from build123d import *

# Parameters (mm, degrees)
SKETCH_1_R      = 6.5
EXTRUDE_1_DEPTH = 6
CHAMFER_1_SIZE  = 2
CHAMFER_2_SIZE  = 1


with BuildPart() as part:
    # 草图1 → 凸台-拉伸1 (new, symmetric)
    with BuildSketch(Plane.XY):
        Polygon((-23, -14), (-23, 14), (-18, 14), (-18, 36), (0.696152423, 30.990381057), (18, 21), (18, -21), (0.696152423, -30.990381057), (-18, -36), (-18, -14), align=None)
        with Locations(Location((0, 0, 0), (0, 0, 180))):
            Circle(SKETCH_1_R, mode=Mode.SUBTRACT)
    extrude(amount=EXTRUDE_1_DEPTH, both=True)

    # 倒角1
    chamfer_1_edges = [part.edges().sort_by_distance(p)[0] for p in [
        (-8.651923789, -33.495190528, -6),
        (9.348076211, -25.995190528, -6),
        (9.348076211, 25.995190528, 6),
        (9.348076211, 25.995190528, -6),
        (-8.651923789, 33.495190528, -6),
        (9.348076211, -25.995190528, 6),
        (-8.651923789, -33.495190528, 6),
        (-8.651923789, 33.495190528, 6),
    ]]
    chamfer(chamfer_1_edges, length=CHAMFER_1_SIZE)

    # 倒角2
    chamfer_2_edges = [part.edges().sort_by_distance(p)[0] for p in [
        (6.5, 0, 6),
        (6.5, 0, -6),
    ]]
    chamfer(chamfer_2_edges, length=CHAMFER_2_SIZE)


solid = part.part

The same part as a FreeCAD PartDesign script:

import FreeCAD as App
import Part
import Sketcher
from FreeCAD import Vector
Q = App.Units.Quantity


def edges_at(feature, points):
    """Names of the edges that pass closest to the given points."""
    edges = feature.Shape.Edges
    near = lambda p: min(range(len(edges)), key=lambda i: edges[i].distToShape(Part.Vertex(*p))[0])
    return sorted({f"Edge{near(p) + 1}" for p in points})

doc = App.newDocument("Part")
params = doc.addObject("Spreadsheet::Sheet", "Params")
for row, (alias, value) in enumerate([
    ("sketch1_diameter", "13 mm"),
    ("sketch1_width", "5 mm"),
    ("sketch1_height", "28 mm"),
    ("sketch1_height2", "22 mm"),
    ("sketch1_height3", "42 mm"),
    ("pad1_length", "12 mm"),
    ("chamfer_size", "2 mm"),
    ("chamfer2_size", "1 mm"),
], start=1):
    params.set(f"A{row}", alias)
    params.set(f"B{row}", "=" + value)
    params.setAlias(f"B{row}", alias)

body = doc.addObject("PartDesign::Body", "Body")

sketch1 = body.newObject("Sketcher::SketchObject", "Sketch")
sketch1.AttachmentSupport = (doc.getObject("XY_Plane"), [""])
sketch1.MapMode = "FlatFace"
sketch1.addGeometry([
    Part.LineSegment(Vector(-23, 14, 0), Vector(-23, -14, 0)),
    Part.LineSegment(Vector(-23, -14, 0), Vector(-18, -14, 0)),
    Part.LineSegment(Vector(-18, -14, 0), Vector(-18, -36, 0)),
    Part.LineSegment(Vector(-18, -36, 0), Vector(1, -31, 0)),
    Part.LineSegment(Vector(1, -31, 0), Vector(18, -21, 0)),
    Part.LineSegment(Vector(18, -21, 0), Vector(18, 21, 0)),
    Part.LineSegment(Vector(18, 21, 0), Vector(1, 31, 0)),
    Part.LineSegment(Vector(1, 31, 0), Vector(-18, 36, 0)),
    Part.LineSegment(Vector(-18, 36, 0), Vector(-18, 14, 0)),
    Part.LineSegment(Vector(-18, 14, 0), Vector(-23, 14, 0)),
    Part.Circle(Vector(0, 0, 0), Vector(0, 0, 1), 6),
], False)
sketch1.addConstraint([
    Sketcher.Constraint("Coincident", 0, 2, 1, 1),
    Sketcher.Constraint("Coincident", 1, 2, 2, 1),
    Sketcher.Constraint("Coincident", 2, 2, 3, 1),
    Sketcher.Constraint("Coincident", 3, 2, 4, 1),
    Sketcher.Constraint("Coincident", 4, 2, 5, 1),
    Sketcher.Constraint("Coincident", 5, 2, 6, 1),
    Sketcher.Constraint("Coincident", 6, 2, 7, 1),
    Sketcher.Constraint("Coincident", 7, 2, 8, 1),
    Sketcher.Constraint("Coincident", 8, 2, 9, 1),
    Sketcher.Constraint("Coincident", 9, 2, 0, 1),
    Sketcher.Constraint("Vertical", 0),
    Sketcher.Constraint("Horizontal", 1),
    Sketcher.Constraint("Vertical", 2),
    Sketcher.Constraint("Vertical", 5),
    Sketcher.Constraint("Vertical", 8),
    Sketcher.Constraint("Horizontal", 9),
    Sketcher.Constraint("Coincident", 10, 3, -1, 1),
    Sketcher.Constraint("Symmetric", 3, 2, 6, 2, -1),
    Sketcher.Constraint("Symmetric", 2, 2, 7, 2, -1),
    Sketcher.Constraint("Equal", 2, 8),
    Sketcher.Constraint("Equal", 4, 6),
    Sketcher.Constraint("Diameter", 10, Q("13 mm")),
    Sketcher.Constraint("DistanceX", 1, 1, 1, 2, Q("5 mm")),
    Sketcher.Constraint("DistanceY", 0, 2, 0, 1, Q("28 mm")),
    Sketcher.Constraint("DistanceY", 2, 2, 2, 1, Q("22 mm")),
    Sketcher.Constraint("DistanceY", 5, 1, 5, 2, Q("42 mm")),
    Sketcher.Constraint("Angle", 3, Q("15 deg")),
    Sketcher.Constraint("Angle", 4, Q("30 deg")),
    Sketcher.Constraint("DistanceX", 0, 2, -1, 1, Q("23 mm")),
    Sketcher.Constraint("DistanceX", -1, 1, 4, 2, Q("18 mm")),
])
sketch1.setExpression("Constraints[21]", "Params.sketch1_diameter")
sketch1.setExpression("Constraints[22]", "Params.sketch1_width")
sketch1.setExpression("Constraints[23]", "Params.sketch1_height")
sketch1.setExpression("Constraints[24]", "Params.sketch1_height2")
sketch1.setExpression("Constraints[25]", "Params.sketch1_height3")
pad1 = body.newObject("PartDesign::Pad", "Pad")
pad1.Profile = sketch1
pad1.setExpression("Length", "Params.pad1_length")
pad1.Midplane = True
doc.recompute()

chamfer = body.newObject("PartDesign::Chamfer", "Chamfer")
chamfer.Base = (pad1, edges_at(pad1, [
    (-8.652, -33.495, -6),
    (9.348, -25.995, -6),
    (9.348, 25.995, 6),
    (9.348, 25.995, -6),
    (-8.652, 33.495, -6),
    (9.348, -25.995, 6),
    (-8.652, -33.495, 6),
    (-8.652, 33.495, 6),
]))
chamfer.setExpression("Size", "Params.chamfer_size")
doc.recompute()

chamfer2 = body.newObject("PartDesign::Chamfer", "Chamfer001")
chamfer2.Base = (chamfer, edges_at(chamfer, [(6.5, 0, 6), (6.5, 0, -6)]))
chamfer2.setExpression("Size", "Params.chamfer2_size")

doc.recompute()
